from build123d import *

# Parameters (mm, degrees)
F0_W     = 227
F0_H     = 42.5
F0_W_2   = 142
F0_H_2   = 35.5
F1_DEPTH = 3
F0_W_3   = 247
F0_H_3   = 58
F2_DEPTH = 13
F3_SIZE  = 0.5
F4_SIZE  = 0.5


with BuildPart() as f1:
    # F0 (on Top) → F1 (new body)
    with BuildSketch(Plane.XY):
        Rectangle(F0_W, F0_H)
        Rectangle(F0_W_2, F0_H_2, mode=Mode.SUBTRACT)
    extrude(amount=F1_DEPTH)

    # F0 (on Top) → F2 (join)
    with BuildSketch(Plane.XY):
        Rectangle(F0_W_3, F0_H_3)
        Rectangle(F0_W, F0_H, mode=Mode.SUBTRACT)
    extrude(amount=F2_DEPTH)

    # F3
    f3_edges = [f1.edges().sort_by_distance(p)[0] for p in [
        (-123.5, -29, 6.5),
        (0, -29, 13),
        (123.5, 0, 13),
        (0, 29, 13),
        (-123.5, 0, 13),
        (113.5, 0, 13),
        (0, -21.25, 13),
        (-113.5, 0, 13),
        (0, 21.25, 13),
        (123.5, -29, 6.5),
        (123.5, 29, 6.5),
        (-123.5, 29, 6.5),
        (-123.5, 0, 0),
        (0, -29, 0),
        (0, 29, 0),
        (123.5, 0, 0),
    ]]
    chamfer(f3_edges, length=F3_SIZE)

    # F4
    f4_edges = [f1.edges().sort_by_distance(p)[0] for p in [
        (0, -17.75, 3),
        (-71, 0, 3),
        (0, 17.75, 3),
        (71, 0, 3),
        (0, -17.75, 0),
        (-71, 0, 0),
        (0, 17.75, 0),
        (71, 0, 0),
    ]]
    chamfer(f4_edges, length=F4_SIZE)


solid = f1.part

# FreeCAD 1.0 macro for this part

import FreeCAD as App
import Part
import Sketcher
from FreeCAD import Vector


def edges_at(feature, points):
    """Names of the edges that pass closest to the given points."""
    edges = feature.Shape.Edges
    near = lambda p: min(range(len(edges)), key=lambda i: edges[i].distToShape(Part.Vertex(*p))[0])
    return sorted({f"Edge{near(p) + 1}" for p in points})


def add_polygon(sketch, points):
    """Adds a closed chain of lines whose ends are joined by coincident constraints."""
    first, n = sketch.GeometryCount, len(points)
    for a, b in zip(points, points[1:] + points[:1]):
        sketch.addGeometry(Part.LineSegment(App.Vector(*a, 0), App.Vector(*b, 0)), False)
    for i in range(n):
        sketch.addConstraint(Sketcher.Constraint("Coincident", first + i, 2, first + (i + 1) % n, 1))

doc = App.newDocument("Part")
params = doc.addObject("Spreadsheet::Sheet", "Params")
for row, (alias, value) in enumerate([
    ("sketch1_width", "227 mm"),
    ("sketch1_width2", "142 mm"),
    ("sketch1_height", "42.5 mm"),
    ("sketch1_height2", "35.5 mm"),
    ("pad1_length", "3 mm"),
    ("sketch2_width", "247 mm"),
    ("sketch2_width2", "227 mm"),
    ("sketch2_height", "58 mm"),
    ("sketch2_height2", "42.5 mm"),
    ("pad2_length", "13 mm"),
    ("chamfer_size", "0.5 mm"),
    ("chamfer2_size", "0.5 mm"),
], start=1):
    params.set(f"A{row}", alias)
    params.set(f"B{row}", "=" + value)
    params.setAlias(f"B{row}", alias)

body = doc.addObject("PartDesign::Body", "Body")

sketch1 = body.newObject("Sketcher::SketchObject", "Sketch")
sketch1.AttachmentSupport = (doc.getObject("XY_Plane"), [""])
sketch1.MapMode = "FlatFace"
add_polygon(sketch1, [(-114, 21), (-114, -21), (114, -21), (114, 21)])
add_polygon(sketch1, [(71, -18), (-71, -18), (-71, 18), (71, 18)])
sketch1.addConstraint(Sketcher.Constraint("Vertical", 0))
sketch1.addConstraint(Sketcher.Constraint("Horizontal", 1))
sketch1.addConstraint(Sketcher.Constraint("Vertical", 2))
sketch1.addConstraint(Sketcher.Constraint("Horizontal", 3))
sketch1.addConstraint(Sketcher.Constraint("Horizontal", 4))
sketch1.addConstraint(Sketcher.Constraint("Vertical", 5))
sketch1.addConstraint(Sketcher.Constraint("Horizontal", 6))
sketch1.addConstraint(Sketcher.Constraint("Vertical", 7))
sketch1.addConstraint(Sketcher.Constraint("Symmetric", 0, 2, 2, 2, -1, 1))
sketch1.addConstraint(Sketcher.Constraint("Symmetric", 4, 2, 6, 2, -1, 1))
sketch1.addConstraint(Sketcher.Constraint("DistanceX", 1, 1, 1, 2, 227.0))
sketch1.addConstraint(Sketcher.Constraint("DistanceX", 4, 2, 4, 1, 142.0))
sketch1.addConstraint(Sketcher.Constraint("DistanceY", 0, 2, 0, 1, 42.5))
sketch1.addConstraint(Sketcher.Constraint("DistanceY", 5, 1, 5, 2, 35.5))
sketch1.setExpression("Constraints[18]", "Params.sketch1_width")
sketch1.setExpression("Constraints[19]", "Params.sketch1_width2")
sketch1.setExpression("Constraints[20]", "Params.sketch1_height")
sketch1.setExpression("Constraints[21]", "Params.sketch1_height2")
pad1 = body.newObject("PartDesign::Pad", "Pad")
pad1.Profile = sketch1
pad1.setExpression("Length", "Params.pad1_length")

sketch2 = body.newObject("Sketcher::SketchObject", "Sketch001")
sketch2.AttachmentSupport = (doc.getObject("XY_Plane"), [""])
sketch2.MapMode = "FlatFace"
add_polygon(sketch2, [(-124, 29), (-124, -29), (124, -29), (124, 29)])
add_polygon(sketch2, [(114, -21), (-114, -21), (-114, 21), (114, 21)])
sketch2.addConstraint(Sketcher.Constraint("Vertical", 0))
sketch2.addConstraint(Sketcher.Constraint("Horizontal", 1))
sketch2.addConstraint(Sketcher.Constraint("Vertical", 2))
sketch2.addConstraint(Sketcher.Constraint("Horizontal", 3))
sketch2.addConstraint(Sketcher.Constraint("Horizontal", 4))
sketch2.addConstraint(Sketcher.Constraint("Vertical", 5))
sketch2.addConstraint(Sketcher.Constraint("Horizontal", 6))
sketch2.addConstraint(Sketcher.Constraint("Vertical", 7))
sketch2.addConstraint(Sketcher.Constraint("Symmetric", 0, 2, 2, 2, -1, 1))
sketch2.addConstraint(Sketcher.Constraint("Symmetric", 4, 2, 6, 2, -1, 1))
sketch2.addConstraint(Sketcher.Constraint("DistanceX", 1, 1, 1, 2, 247.0))
sketch2.addConstraint(Sketcher.Constraint("DistanceX", 4, 2, 4, 1, 227.0))
sketch2.addConstraint(Sketcher.Constraint("DistanceY", 0, 2, 0, 1, 58.0))
sketch2.addConstraint(Sketcher.Constraint("DistanceY", 5, 1, 5, 2, 42.5))
sketch2.setExpression("Constraints[18]", "Params.sketch2_width")
sketch2.setExpression("Constraints[19]", "Params.sketch2_width2")
sketch2.setExpression("Constraints[20]", "Params.sketch2_height")
sketch2.setExpression("Constraints[21]", "Params.sketch2_height2")
pad2 = body.newObject("PartDesign::Pad", "Pad001")
pad2.Profile = sketch2
pad2.setExpression("Length", "Params.pad2_length")
doc.recompute()

chamfer = body.newObject("PartDesign::Chamfer", "Chamfer")
chamfer.Base = (pad2, edges_at(pad2, [
    (-123.5, -29, 6.5),
    (0, -29, 13),
    (123.5, 0, 13),
    (0, 29, 13),
    (-123.5, 0, 13),
    (113.5, 0, 13),
    (0, -21.25, 13),
    (-113.5, 0, 13),
    (0, 21.25, 13),
    (123.5, -29, 6.5),
    (123.5, 29, 6.5),
    (-123.5, 29, 6.5),
    (-123.5, 0, 0),
    (0, -29, 0),
    (0, 29, 0),
    (123.5, 0, 0),
]))
chamfer.setExpression("Size", "Params.chamfer_size")
doc.recompute()

chamfer2 = body.newObject("PartDesign::Chamfer", "Chamfer001")
chamfer2.Base = (chamfer, edges_at(chamfer, [
    (0, -17.75, 3),
    (-71, 0, 3),
    (0, 17.75, 3),
    (71, 0, 3),
    (0, -17.75, 0),
    (-71, 0, 0),
    (0, 17.75, 0),
    (71, 0, 0),
]))
chamfer2.setExpression("Size", "Params.chamfer2_size")

doc.recompute()
